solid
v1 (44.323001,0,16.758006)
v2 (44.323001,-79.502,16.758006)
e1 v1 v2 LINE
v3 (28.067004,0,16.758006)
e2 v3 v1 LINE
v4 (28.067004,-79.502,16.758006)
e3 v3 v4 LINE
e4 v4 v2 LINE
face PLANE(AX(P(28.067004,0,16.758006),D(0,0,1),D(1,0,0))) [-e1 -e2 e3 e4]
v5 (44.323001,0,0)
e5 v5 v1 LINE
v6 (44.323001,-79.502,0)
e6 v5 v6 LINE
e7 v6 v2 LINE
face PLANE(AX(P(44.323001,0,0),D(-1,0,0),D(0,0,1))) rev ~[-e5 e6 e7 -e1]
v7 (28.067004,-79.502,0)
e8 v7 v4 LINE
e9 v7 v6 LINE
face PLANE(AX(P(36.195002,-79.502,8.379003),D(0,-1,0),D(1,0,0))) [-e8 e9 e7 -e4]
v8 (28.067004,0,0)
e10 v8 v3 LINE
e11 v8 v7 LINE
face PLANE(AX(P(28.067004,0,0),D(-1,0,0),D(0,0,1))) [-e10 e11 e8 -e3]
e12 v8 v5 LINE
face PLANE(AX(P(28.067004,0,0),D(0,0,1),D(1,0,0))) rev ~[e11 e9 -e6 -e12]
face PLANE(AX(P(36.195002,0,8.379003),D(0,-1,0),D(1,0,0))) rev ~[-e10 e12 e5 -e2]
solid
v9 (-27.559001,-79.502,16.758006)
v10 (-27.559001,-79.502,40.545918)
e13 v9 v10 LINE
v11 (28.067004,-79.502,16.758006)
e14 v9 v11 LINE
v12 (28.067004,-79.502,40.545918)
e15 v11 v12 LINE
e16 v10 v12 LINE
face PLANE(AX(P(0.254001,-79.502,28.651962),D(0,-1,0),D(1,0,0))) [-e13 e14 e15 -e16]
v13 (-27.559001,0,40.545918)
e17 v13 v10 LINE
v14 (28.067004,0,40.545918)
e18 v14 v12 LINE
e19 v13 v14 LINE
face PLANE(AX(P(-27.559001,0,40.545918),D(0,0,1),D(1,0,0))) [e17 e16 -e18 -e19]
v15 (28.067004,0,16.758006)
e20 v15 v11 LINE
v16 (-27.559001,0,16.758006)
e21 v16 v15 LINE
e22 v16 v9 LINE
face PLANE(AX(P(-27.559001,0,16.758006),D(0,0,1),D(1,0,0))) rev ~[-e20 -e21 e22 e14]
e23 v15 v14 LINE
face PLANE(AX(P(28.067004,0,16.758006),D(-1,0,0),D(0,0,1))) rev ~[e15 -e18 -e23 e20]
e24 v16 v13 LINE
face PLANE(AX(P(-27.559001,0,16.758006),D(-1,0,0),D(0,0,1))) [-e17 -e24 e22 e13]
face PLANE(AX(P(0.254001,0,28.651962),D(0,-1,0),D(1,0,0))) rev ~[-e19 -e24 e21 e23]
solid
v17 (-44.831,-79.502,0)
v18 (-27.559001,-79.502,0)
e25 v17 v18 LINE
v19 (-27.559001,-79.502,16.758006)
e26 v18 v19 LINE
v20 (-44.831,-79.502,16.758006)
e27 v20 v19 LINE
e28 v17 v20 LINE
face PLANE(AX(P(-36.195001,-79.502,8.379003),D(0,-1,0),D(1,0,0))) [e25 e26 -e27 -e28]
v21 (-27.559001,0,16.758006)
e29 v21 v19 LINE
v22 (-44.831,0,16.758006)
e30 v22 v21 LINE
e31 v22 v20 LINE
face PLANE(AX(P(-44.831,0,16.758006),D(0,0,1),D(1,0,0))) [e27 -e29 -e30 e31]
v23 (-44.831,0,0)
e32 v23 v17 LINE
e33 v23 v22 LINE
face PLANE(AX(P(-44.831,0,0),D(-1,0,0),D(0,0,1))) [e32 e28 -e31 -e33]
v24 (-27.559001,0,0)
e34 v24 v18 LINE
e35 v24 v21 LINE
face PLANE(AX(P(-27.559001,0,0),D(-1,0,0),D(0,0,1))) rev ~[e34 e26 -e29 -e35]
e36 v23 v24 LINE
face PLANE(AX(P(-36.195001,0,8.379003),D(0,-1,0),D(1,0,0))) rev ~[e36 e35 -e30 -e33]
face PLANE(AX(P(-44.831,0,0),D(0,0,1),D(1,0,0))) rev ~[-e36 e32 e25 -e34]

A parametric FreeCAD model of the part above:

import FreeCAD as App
import Part
import Sketcher
Q = App.Units.Quantity


def add_polygon(sketch, points):
    """Adds a closed chain of lines whose ends are joined by coincident constraints."""
    first, n = sketch.GeometryCount, len(points)
    for a, b in zip(points, points[1:] + points[:1]):
        sketch.addGeometry(Part.LineSegment(App.Vector(*a, 0), App.Vector(*b, 0)), False)
    for i in range(n):
        sketch.addConstraint(Sketcher.Constraint("Coincident", first + i, 2, first + (i + 1) % n, 1))

doc = App.newDocument("Part")
params = doc.addObject("Spreadsheet::Sheet", "Params")
for row, (alias, value) in enumerate([
    ("sketch1_width", "0.68 in"),
    ("pad1_length", "3.13 in"),
    ("sketch2_width", "2.1900002 in"),
    ("pad2_length", "3.13 in"),
    ("sketch3_width", "0.6399999 in"),
    ("pad3_length", "3.13 in"),
], start=1):
    params.set(f"A{row}", alias)
    params.set(f"B{row}", "=" + value)
    params.setAlias(f"B{row}", alias)

body = doc.addObject("PartDesign::Body", "Body")

sketch1 = body.newObject("Sketcher::SketchObject", "Sketch")
sketch1.AttachmentSupport = (doc.getObject("XZ_Plane"), [""])
sketch1.MapMode = "FlatFace"
add_polygon(sketch1, [(-45, 17), (-45, 0), (-28, 0), (-28, 17)])
sketch1.addConstraint([
    Sketcher.Constraint("Vertical", 0),
    Sketcher.Constraint("Horizontal", 1),
    Sketcher.Constraint("Vertical", 2),
    Sketcher.Constraint("Horizontal", 3),
    Sketcher.Constraint("PointOnObject", 0, 2, -1),
    Sketcher.Constraint("DistanceX", 1, 1, 1, 2, Q("0.68 in")),
    Sketcher.Constraint("DistanceX", 0, 2, -1, 1, Q("1.765 in")),
    Sketcher.Constraint("DistanceY", 0, 2, 0, 1, Q("16.758006 mm")),
])
sketch1.setExpression("Constraints[9]", "Params.sketch1_width")
pad1 = body.newObject("PartDesign::Pad", "Pad")
pad1.Profile = sketch1
pad1.setExpression("Length", "Params.pad1_length")
body2 = doc.addObject("PartDesign::Body", "Body001")

sketch2 = body2.newObject("Sketcher::SketchObject", "Sketch001")
sketch2.AttachmentSupport = (doc.getObject("XZ_Plane001"), [""])
sketch2.MapMode = "FlatFace"
add_polygon(sketch2, [(-28, 41), (-28, 17), (28, 17), (28, 41)])
sketch2.addConstraint([
    Sketcher.Constraint("Vertical", 0),
    Sketcher.Constraint("Horizontal", 1),
    Sketcher.Constraint("Vertical", 2),
    Sketcher.Constraint("Horizontal", 3),
    Sketcher.Constraint("DistanceX", 1, 1, 1, 2, Q("2.1900002 in")),
    Sketcher.Constraint("DistanceX", 0, 2, -1, 1, Q("1.085 in")),
    Sketcher.Constraint("DistanceY", 0, 2, 0, 1, Q("23.787912 mm")),
    Sketcher.Constraint("DistanceY", -1, 1, 0, 2, Q("16.758006 mm")),
])
sketch2.setExpression("Constraints[8]", "Params.sketch2_width")
pad2 = body2.newObject("PartDesign::Pad", "Pad001")
pad2.Profile = sketch2
pad2.setExpression("Length", "Params.pad2_length")
body3 = doc.addObject("PartDesign::Body", "Body002")

sketch3 = body3.newObject("Sketcher::SketchObject", "Sketch002")
sketch3.AttachmentSupport = (doc.getObject("XZ_Plane002"), [""])
sketch3.MapMode = "FlatFace"
add_polygon(sketch3, [(28, 17), (28, 0), (44, 0), (44, 17)])
sketch3.addConstraint([
    Sketcher.Constraint("Vertical", 0),
    Sketcher.Constraint("Horizontal", 1),
    Sketcher.Constraint("Vertical", 2),
    Sketcher.Constraint("Horizontal", 3),
    Sketcher.Constraint("PointOnObject", 0, 2, -1),
    Sketcher.Constraint("DistanceX", 1, 1, 1, 2, Q("0.6399999 in")),
    Sketcher.Constraint("DistanceX", -1, 1, 0, 2, Q("1.1050002 in")),
    Sketcher.Constraint("DistanceY", 0, 2, 0, 1, Q("16.758006 mm")),
])
sketch3.setExpression("Constraints[9]", "Params.sketch3_width")
pad3 = body3.newObject("PartDesign::Pad", "Pad002")
pad3.Profile = sketch3
pad3.setExpression("Length", "Params.pad3_length")

doc.recompute()
